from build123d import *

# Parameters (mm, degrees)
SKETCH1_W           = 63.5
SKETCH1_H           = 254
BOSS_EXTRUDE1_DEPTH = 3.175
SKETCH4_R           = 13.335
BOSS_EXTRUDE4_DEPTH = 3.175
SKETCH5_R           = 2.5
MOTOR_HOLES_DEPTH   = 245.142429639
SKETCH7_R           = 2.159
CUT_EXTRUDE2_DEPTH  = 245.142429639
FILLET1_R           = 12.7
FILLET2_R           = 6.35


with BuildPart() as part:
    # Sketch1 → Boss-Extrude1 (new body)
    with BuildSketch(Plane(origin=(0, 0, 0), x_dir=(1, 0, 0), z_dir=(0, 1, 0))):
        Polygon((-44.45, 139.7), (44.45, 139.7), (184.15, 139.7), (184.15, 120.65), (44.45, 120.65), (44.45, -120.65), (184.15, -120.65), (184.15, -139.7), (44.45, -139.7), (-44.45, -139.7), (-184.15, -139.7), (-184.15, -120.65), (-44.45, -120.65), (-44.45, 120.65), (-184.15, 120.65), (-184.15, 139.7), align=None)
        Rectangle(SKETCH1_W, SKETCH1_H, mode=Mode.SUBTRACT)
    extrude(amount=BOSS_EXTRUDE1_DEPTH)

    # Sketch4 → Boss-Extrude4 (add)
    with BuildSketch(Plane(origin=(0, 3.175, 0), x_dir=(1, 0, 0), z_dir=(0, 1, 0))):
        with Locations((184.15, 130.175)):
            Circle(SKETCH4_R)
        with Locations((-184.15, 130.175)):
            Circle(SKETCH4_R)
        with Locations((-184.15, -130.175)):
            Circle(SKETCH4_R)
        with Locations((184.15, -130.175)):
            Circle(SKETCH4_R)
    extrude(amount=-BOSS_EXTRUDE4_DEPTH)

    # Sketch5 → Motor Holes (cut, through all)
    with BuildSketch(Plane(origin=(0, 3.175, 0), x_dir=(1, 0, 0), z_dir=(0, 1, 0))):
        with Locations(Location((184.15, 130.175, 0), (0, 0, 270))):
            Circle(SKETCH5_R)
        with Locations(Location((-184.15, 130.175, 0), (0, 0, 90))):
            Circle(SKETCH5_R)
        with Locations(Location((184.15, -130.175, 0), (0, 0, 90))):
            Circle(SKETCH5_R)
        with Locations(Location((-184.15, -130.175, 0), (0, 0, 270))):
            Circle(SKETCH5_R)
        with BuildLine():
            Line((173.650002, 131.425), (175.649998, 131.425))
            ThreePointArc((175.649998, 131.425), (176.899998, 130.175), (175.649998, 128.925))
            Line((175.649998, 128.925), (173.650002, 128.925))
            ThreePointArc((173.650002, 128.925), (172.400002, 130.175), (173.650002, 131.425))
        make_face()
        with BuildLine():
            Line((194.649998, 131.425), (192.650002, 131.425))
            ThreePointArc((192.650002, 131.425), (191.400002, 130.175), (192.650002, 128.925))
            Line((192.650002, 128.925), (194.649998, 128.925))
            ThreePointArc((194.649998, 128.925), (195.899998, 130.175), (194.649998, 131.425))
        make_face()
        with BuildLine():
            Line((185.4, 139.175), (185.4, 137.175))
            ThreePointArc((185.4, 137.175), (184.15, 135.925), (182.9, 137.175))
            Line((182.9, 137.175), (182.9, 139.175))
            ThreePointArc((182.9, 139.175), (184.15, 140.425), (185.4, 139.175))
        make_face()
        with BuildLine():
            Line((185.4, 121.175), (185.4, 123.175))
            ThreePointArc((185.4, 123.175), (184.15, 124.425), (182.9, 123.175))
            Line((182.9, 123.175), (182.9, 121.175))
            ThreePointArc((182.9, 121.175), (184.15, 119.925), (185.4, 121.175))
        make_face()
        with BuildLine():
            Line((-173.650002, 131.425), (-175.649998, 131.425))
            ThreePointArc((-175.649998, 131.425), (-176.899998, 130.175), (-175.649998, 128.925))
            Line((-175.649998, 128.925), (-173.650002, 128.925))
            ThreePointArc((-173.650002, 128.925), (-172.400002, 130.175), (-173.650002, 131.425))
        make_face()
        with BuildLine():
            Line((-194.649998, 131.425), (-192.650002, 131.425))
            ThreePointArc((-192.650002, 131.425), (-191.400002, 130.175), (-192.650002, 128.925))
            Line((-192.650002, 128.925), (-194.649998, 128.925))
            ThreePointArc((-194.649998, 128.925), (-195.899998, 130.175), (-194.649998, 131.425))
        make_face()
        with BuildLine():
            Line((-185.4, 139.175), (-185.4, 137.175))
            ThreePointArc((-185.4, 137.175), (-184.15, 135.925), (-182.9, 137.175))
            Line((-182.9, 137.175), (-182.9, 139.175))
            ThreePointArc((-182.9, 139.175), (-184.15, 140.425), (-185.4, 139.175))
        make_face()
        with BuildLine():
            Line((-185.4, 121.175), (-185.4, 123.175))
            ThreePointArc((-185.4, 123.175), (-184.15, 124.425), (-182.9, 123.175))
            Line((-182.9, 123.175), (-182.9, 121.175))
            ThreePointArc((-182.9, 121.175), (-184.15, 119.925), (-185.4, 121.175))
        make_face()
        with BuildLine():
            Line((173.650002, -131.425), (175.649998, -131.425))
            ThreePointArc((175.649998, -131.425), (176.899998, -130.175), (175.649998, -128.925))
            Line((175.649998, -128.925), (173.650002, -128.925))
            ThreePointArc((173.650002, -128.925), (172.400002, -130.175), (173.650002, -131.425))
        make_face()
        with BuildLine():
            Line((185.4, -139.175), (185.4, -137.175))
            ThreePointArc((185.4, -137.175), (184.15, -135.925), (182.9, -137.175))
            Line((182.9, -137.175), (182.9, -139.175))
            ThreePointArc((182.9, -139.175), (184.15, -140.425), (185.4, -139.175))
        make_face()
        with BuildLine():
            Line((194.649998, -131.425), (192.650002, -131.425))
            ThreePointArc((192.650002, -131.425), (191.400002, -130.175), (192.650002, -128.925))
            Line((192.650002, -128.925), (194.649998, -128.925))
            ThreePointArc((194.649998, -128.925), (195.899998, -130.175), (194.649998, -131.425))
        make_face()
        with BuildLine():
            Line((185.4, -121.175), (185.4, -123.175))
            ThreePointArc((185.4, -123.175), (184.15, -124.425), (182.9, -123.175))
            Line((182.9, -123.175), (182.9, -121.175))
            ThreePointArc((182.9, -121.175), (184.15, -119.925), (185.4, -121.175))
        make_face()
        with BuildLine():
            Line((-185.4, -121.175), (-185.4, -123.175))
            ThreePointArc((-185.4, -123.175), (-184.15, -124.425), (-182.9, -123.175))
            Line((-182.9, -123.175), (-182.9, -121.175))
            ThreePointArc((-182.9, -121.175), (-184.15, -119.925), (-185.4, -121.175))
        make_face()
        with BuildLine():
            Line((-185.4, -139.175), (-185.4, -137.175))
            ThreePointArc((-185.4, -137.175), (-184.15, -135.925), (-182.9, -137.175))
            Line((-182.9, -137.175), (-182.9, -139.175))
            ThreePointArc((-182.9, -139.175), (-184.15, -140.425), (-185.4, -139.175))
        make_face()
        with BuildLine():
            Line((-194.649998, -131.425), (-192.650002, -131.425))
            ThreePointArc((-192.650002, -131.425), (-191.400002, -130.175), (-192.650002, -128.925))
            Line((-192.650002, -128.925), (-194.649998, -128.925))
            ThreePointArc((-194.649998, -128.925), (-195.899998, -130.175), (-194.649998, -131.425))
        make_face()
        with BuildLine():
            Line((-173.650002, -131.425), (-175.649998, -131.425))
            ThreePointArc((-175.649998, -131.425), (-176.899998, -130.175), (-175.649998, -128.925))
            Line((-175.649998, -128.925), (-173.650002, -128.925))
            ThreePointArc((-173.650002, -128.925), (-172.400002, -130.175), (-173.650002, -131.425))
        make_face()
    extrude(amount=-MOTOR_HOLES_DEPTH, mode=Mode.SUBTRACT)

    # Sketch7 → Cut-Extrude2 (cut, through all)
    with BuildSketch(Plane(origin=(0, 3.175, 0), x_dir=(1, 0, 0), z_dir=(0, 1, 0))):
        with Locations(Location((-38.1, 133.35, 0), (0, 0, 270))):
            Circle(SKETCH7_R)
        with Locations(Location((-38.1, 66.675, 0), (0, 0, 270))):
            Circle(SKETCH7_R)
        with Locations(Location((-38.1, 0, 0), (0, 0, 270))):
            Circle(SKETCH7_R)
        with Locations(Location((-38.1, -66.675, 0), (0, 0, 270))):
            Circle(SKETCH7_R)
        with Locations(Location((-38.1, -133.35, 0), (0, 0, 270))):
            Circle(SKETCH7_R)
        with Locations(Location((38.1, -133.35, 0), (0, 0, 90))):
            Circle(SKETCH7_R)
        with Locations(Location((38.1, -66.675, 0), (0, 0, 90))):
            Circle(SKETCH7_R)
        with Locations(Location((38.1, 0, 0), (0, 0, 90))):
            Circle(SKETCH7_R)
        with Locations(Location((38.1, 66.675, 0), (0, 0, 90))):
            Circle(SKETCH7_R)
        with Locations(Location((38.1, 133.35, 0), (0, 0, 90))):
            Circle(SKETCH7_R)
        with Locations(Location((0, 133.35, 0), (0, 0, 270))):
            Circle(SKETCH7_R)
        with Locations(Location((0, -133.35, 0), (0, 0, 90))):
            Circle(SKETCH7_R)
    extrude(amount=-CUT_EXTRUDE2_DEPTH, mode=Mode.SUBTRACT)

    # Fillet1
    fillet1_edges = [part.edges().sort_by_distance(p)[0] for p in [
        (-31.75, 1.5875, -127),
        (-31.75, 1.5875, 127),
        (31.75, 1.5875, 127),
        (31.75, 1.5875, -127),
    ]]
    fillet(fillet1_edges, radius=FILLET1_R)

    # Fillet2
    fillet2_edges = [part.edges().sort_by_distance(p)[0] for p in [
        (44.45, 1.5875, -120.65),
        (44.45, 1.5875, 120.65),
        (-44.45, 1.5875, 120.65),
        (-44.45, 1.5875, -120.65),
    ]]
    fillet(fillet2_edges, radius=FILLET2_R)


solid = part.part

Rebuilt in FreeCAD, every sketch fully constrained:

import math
import FreeCAD as App
import Part
import Sketcher
from FreeCAD import Vector
Q = App.Units.Quantity


def edges_at(feature, points):
    """Names of the edges that pass closest to the given points."""
    edges = feature.Shape.Edges
    near = lambda p: min(range(len(edges)), key=lambda i: edges[i].distToShape(Part.Vertex(*p))[0])
    return sorted({f"Edge{near(p) + 1}" for p in points})


def add_polygon(sketch, points):
    """Adds a closed chain of lines whose ends are joined by coincident constraints."""
    first, n = sketch.GeometryCount, len(points)
    for a, b in zip(points, points[1:] + points[:1]):
        sketch.addGeometry(Part.LineSegment(App.Vector(*a, 0), App.Vector(*b, 0)), False)
    for i in range(n):
        sketch.addConstraint(Sketcher.Constraint("Coincident", first + i, 2, first + (i + 1) % n, 1))

doc = App.newDocument("Part")
body = doc.addObject("PartDesign::Body", "Body")

sketch1 = body.newObject("Sketcher::SketchObject", "Sketch")
sketch1.AttachmentSupport = (doc.getObject("XZ_Plane"), [""])
sketch1.MapMode = "FlatFace"
add_polygon(sketch1, [(184, -140), (-184, -140), (-184, -121), (-44, -121), (-44, 121), (-184, 121), (-184, 140), (184, 140), (184, 121), (44, 121), (44, -121), (184, -121)])
add_polygon(sketch1, [(-32, 127), (-32, -127), (32, -127), (32, 127)])
sketch1.addConstraint([
    Sketcher.Constraint("Horizontal", 0),
    Sketcher.Constraint("Vertical", 1),
    Sketcher.Constraint("Horizontal", 2),
    Sketcher.Constraint("Vertical", 3),
    Sketcher.Constraint("Horizontal", 4),
    Sketcher.Constraint("Vertical", 5),
    Sketcher.Constraint("Horizontal", 6),
    Sketcher.Constraint("Vertical", 7),
    Sketcher.Constraint("Horizontal", 8),
    Sketcher.Constraint("Vertical", 9),
    Sketcher.Constraint("Horizontal", 10),
    Sketcher.Constraint("Vertical", 11),
    Sketcher.Constraint("Vertical", 12),
    Sketcher.Constraint("Horizontal", 13),
    Sketcher.Constraint("Vertical", 14),
    Sketcher.Constraint("Horizontal", 15),
    Sketcher.Constraint("Symmetric", 0, 2, 6, 2, -1, 1),
    Sketcher.Constraint("Symmetric", 2, 2, 8, 2, -1, 1),
    Sketcher.Constraint("Symmetric", 4, 2, 10, 2, -1, 1),
    Sketcher.Constraint("Symmetric", 12, 2, 14, 2, -1, 1),
    Sketcher.Constraint("Symmetric", 4, 2, 7, 2, -2),
    Sketcher.Constraint("DistanceY", 12, 2, 12, 1, Q("10 in")),
    Sketcher.Constraint("DistanceX", 0, 2, 0, 1, Q("14.5 in")),
    Sketcher.Constraint("DistanceX", 2, 1, 2, 2, Q("5.5 in")),
    Sketcher.Constraint("DistanceX", 13, 1, 13, 2, Q("2.5 in")),
    Sketcher.Constraint("DistanceY", 3, 1, 3, 2, Q("9.5 in")),
    Sketcher.Constraint("DistanceY", 0, 2, 5, 2, Q("11 in")),
])
pad1 = body.newObject("PartDesign::Pad", "Pad")
pad1.Profile = sketch1
pad1.Length = Q("0.125 in")
pad1.Reversed = True

sketch2 = body.newObject("Sketcher::SketchObject", "Sketch001")
sketch2.AttachmentSupport = (doc.getObject("XZ_Plane"), [""])
sketch2.MapMode = "FlatFace"
sketch2.AttachmentOffset = App.Placement(Vector(0, 0, -0.125 * 25.4), App.Rotation())
sketch2.addGeometry([
    Part.Circle(Vector(184, -130, 0), Vector(0, 0, 1), 13),
    Part.Circle(Vector(-184, -130, 0), Vector(0, 0, 1), 13),
    Part.Circle(Vector(-184, 130, 0), Vector(0, 0, 1), 13),
    Part.Circle(Vector(184, 130, 0), Vector(0, 0, 1), 13),
], False)
sketch2.addConstraint([
    Sketcher.Constraint("Equal", 0, 1),
    Sketcher.Constraint("Equal", 1, 2),
    Sketcher.Constraint("Equal", 2, 3),
    Sketcher.Constraint("Symmetric", 0, 3, 2, 3, -1, 1),
    Sketcher.Constraint("Symmetric", 1, 3, 3, 3, -1, 1),
    Sketcher.Constraint("Symmetric", 0, 3, 1, 3, -2),
    Sketcher.Constraint("Diameter", 0, Q("1.05 in")),
    Sketcher.Constraint("DistanceX", 1, 3, 0, 3, Q("14.5 in")),
    Sketcher.Constraint("DistanceY", 1, 3, 2, 3, Q("10.25 in")),
])
pad2 = body.newObject("PartDesign::Pad", "Pad001")
pad2.Profile = sketch2
pad2.Length = Q("0.125 in")

sketch3 = body.newObject("Sketcher::SketchObject", "Sketch002")
sketch3.AttachmentSupport = (doc.getObject("XZ_Plane"), [""])
sketch3.MapMode = "FlatFace"
sketch3.AttachmentOffset = App.Placement(Vector(0, 0, -0.125 * 25.4), App.Rotation())
sketch3.addGeometry([
    Part.Circle(Vector(184.2, -130.2, 0), Vector(0, 0, 1), 2.5),
    Part.Circle(Vector(-184.2, -130.2, 0), Vector(0, 0, 1), 2.5),
    Part.Circle(Vector(184.2, 130.2, 0), Vector(0, 0, 1), 2.5),
    Part.Circle(Vector(-184.2, 130.2, 0), Vector(0, 0, 1), 2.5),
    Part.LineSegment(Vector(175.6, -131.4, 0), Vector(173.7, -131.4, 0)),
    Part.ArcOfCircle(Part.Circle(Vector(173.7, -130.2, 0), Vector(0, 0, 1), 1.2), math.radians(90), math.radians(270)),
    Part.LineSegment(Vector(173.7, -128.9, 0), Vector(175.6, -128.9, 0)),
    Part.ArcOfCircle(Part.Circle(Vector(175.6, -130.2, 0), Vector(0, 0, 1), 1.2), math.radians(-90), math.radians(90)),
    Part.LineSegment(Vector(194.6, -131.4, 0), Vector(192.7, -131.4, 0)),
    Part.ArcOfCircle(Part.Circle(Vector(192.7, -130.2, 0), Vector(0, 0, 1), 1.2), math.radians(90), math.radians(270)),
    Part.LineSegment(Vector(192.7, -128.9, 0), Vector(194.6, -128.9, 0)),
    Part.ArcOfCircle(Part.Circle(Vector(194.6, -130.2, 0), Vector(0, 0, 1), 1.2), math.radians(-90), math.radians(90)),
    Part.LineSegment(Vector(185.4, -137.2, 0), Vector(185.4, -139.2, 0)),
    Part.ArcOfCircle(Part.Circle(Vector(184.2, -139.2, 0), Vector(0, 0, 1), 1.2), math.radians(180), math.radians(360)),
    Part.LineSegment(Vector(182.9, -139.2, 0), Vector(182.9, -137.2, 0)),
    Part.ArcOfCircle(Part.Circle(Vector(184.2, -137.2, 0), Vector(0, 0, 1), 1.2), math.radians(0), math.radians(180)),
    Part.LineSegment(Vector(185.4, -121.2, 0), Vector(185.4, -123.2, 0)),
    Part.ArcOfCircle(Part.Circle(Vector(184.2, -123.2, 0), Vector(0, 0, 1), 1.2), math.radians(180), math.radians(360)),
    Part.LineSegment(Vector(182.9, -123.2, 0), Vector(182.9, -121.2, 0)),
    Part.ArcOfCircle(Part.Circle(Vector(184.2, -121.2, 0), Vector(0, 0, 1), 1.2), math.radians(0), math.radians(180)),
    Part.LineSegment(Vector(-173.7, -131.4, 0), Vector(-175.6, -131.4, 0)),
    Part.ArcOfCircle(Part.Circle(Vector(-175.6, -130.2, 0), Vector(0, 0, 1), 1.2), math.radians(90), math.radians(270)),
    Part.LineSegment(Vector(-175.6, -128.9, 0), Vector(-173.7, -128.9, 0)),
    Part.ArcOfCircle(Part.Circle(Vector(-173.7, -130.2, 0), Vector(0, 0, 1), 1.2), math.radians(-90), math.radians(90)),
    Part.LineSegment(Vector(-192.7, -131.4, 0), Vector(-194.6, -131.4, 0)),
    Part.ArcOfCircle(Part.Circle(Vector(-194.6, -130.2, 0), Vector(0, 0, 1), 1.2), math.radians(90), math.radians(270)),
    Part.LineSegment(Vector(-194.6, -128.9, 0), Vector(-192.7, -128.9, 0)),
    Part.ArcOfCircle(Part.Circle(Vector(-192.7, -130.2, 0), Vector(0, 0, 1), 1.2), math.radians(-90), math.radians(90)),
    Part.LineSegment(Vector(-185.4, -139.2, 0), Vector(-185.4, -137.2, 0)),
    Part.ArcOfCircle(Part.Circle(Vector(-184.2, -137.2, 0), Vector(0, 0, 1), 1.2), math.radians(0), math.radians(180)),
    Part.LineSegment(Vector(-182.9, -137.2, 0), Vector(-182.9, -139.2, 0)),
    Part.ArcOfCircle(Part.Circle(Vector(-184.2, -139.2, 0), Vector(0, 0, 1), 1.2), math.radians(180), math.radians(360)),
    Part.LineSegment(Vector(-185.4, -123.2, 0), Vector(-185.4, -121.2, 0)),
    Part.ArcOfCircle(Part.Circle(Vector(-184.2, -121.2, 0), Vector(0, 0, 1), 1.2), math.radians(0), math.radians(180)),
    Part.LineSegment(Vector(-182.9, -121.2, 0), Vector(-182.9, -123.2, 0)),
    Part.ArcOfCircle(Part.Circle(Vector(-184.2, -123.2, 0), Vector(0, 0, 1), 1.2), math.radians(180), math.radians(360)),
    Part.LineSegment(Vector(173.7, 131.4, 0), Vector(175.6, 131.4, 0)),
    Part.ArcOfCircle(Part.Circle(Vector(175.6, 130.2, 0), Vector(0, 0, 1), 1.2), math.radians(-90), math.radians(90)),
    Part.LineSegment(Vector(175.6, 128.9, 0), Vector(173.7, 128.9, 0)),
    Part.ArcOfCircle(Part.Circle(Vector(173.7, 130.2, 0), Vector(0, 0, 1), 1.2), math.radians(90), math.radians(270)),
    Part.LineSegment(Vector(185.4, 139.2, 0), Vector(185.4, 137.2, 0)),
    Part.ArcOfCircle(Part.Circle(Vector(184.2, 137.2, 0), Vector(0, 0, 1), 1.2), math.radians(180), math.radians(360)),
    Part.LineSegment(Vector(182.9, 137.2, 0), Vector(182.9, 139.2, 0)),
    Part.ArcOfCircle(Part.Circle(Vector(184.2, 139.2, 0), Vector(0, 0, 1), 1.2), math.radians(0), math.radians(180)),
    Part.LineSegment(Vector(192.7, 131.4, 0), Vector(194.6, 131.4, 0)),
    Part.ArcOfCircle(Part.Circle(Vector(194.6, 130.2, 0), Vector(0, 0, 1), 1.2), math.radians(-90), math.radians(90)),
    Part.LineSegment(Vector(194.6, 128.9, 0), Vector(192.7, 128.9, 0)),
    Part.ArcOfCircle(Part.Circle(Vector(192.7, 130.2, 0), Vector(0, 0, 1), 1.2), math.radians(90), math.radians(270)),
    Part.LineSegment(Vector(185.4, 123.2, 0), Vector(185.4, 121.2, 0)),
    Part.ArcOfCircle(Part.Circle(Vector(184.2, 121.2, 0), Vector(0, 0, 1), 1.2), math.radians(180), math.radians(360)),
    Part.LineSegment(Vector(182.9, 121.2, 0), Vector(182.9, 123.2, 0)),
    Part.ArcOfCircle(Part.Circle(Vector(184.2, 123.2, 0), Vector(0, 0, 1), 1.2), math.radians(0), math.radians(180)),
    Part.LineSegment(Vector(-185.4, 121.2, 0), Vector(-185.4, 123.2, 0)),
    Part.ArcOfCircle(Part.Circle(Vector(-184.2, 123.2, 0), Vector(0, 0, 1), 1.2), math.radians(0), math.radians(180)),
    Part.LineSegment(Vector(-182.9, 123.2, 0), Vector(-182.9, 121.2, 0)),
    Part.ArcOfCircle(Part.Circle(Vector(-184.2, 121.2, 0), Vector(0, 0, 1), 1.2), math.radians(180), math.radians(360)),
    Part.LineSegment(Vector(-185.4, 137.2, 0), Vector(-185.4, 139.2, 0)),
    Part.ArcOfCircle(Part.Circle(Vector(-184.2, 139.2, 0), Vector(0, 0, 1), 1.2), math.radians(0), math.radians(180)),
    Part.LineSegment(Vector(-182.9, 139.2, 0), Vector(-182.9, 137.2, 0)),
    Part.ArcOfCircle(Part.Circle(Vector(-184.2, 137.2, 0), Vector(0, 0, 1), 1.2), math.radians(180), math.radians(360)),
    Part.LineSegment(Vector(-194.6, 131.4, 0), Vector(-192.7, 131.4, 0)),
    Part.ArcOfCircle(Part.Circle(Vector(-192.7, 130.2, 0), Vector(0, 0, 1), 1.2), math.radians(-90), math.radians(90)),
    Part.LineSegment(Vector(-192.7, 128.9, 0), Vector(-194.6, 128.9, 0)),
    Part.ArcOfCircle(Part.Circle(Vector(-194.6, 130.2, 0), Vector(0, 0, 1), 1.2), math.radians(90), math.radians(270)),
    Part.LineSegment(Vector(-175.6, 131.4, 0), Vector(-173.7, 131.4, 0)),
    Part.ArcOfCircle(Part.Circle(Vector(-173.7, 130.2, 0), Vector(0, 0, 1), 1.2), math.radians(-90), math.radians(90)),
    Part.LineSegment(Vector(-173.7, 128.9, 0), Vector(-175.6, 128.9, 0)),
    Part.ArcOfCircle(Part.Circle(Vector(-175.6, 130.2, 0), Vector(0, 0, 1), 1.2), math.radians(90), math.radians(270)),
], False)
sketch3.addConstraint([
    Sketcher.Constraint("Tangent", 4, 2, 5, 2),
    Sketcher.Constraint("Tangent", 5, 1, 6, 1),
    Sketcher.Constraint("Tangent", 6, 2, 7, 2),
    Sketcher.Constraint("Tangent", 7, 1, 4, 1),
    Sketcher.Constraint("Tangent", 8, 2, 9, 2),
    Sketcher.Constraint("Tangent", 9, 1, 10, 1),
    Sketcher.Constraint("Tangent", 10, 2, 11, 2),
    Sketcher.Constraint("Tangent", 11, 1, 8, 1),
    Sketcher.Constraint("Tangent", 12, 2, 13, 2),
    Sketcher.Constraint("Tangent", 13, 1, 14, 1),
    Sketcher.Constraint("Tangent", 14, 2, 15, 2),
    Sketcher.Constraint("Tangent", 15, 1, 12, 1),
    Sketcher.Constraint("Tangent", 16, 2, 17, 2),
    Sketcher.Constraint("Tangent", 17, 1, 18, 1),
    Sketcher.Constraint("Tangent", 18, 2, 19, 2),
    Sketcher.Constraint("Tangent", 19, 1, 16, 1),
    Sketcher.Constraint("Tangent", 20, 2, 21, 2),
    Sketcher.Constraint("Tangent", 21, 1, 22, 1),
    Sketcher.Constraint("Tangent", 22, 2, 23, 2),
    Sketcher.Constraint("Tangent", 23, 1, 20, 1),
    Sketcher.Constraint("Tangent", 24, 2, 25, 2),
    Sketcher.Constraint("Tangent", 25, 1, 26, 1),
    Sketcher.Constraint("Tangent", 26, 2, 27, 2),
    Sketcher.Constraint("Tangent", 27, 1, 24, 1),
    Sketcher.Constraint("Tangent", 28, 2, 29, 2),
    Sketcher.Constraint("Tangent", 29, 1, 30, 1),
    Sketcher.Constraint("Tangent", 30, 2, 31, 2),
    Sketcher.Constraint("Tangent", 31, 1, 28, 1),
    Sketcher.Constraint("Tangent", 32, 2, 33, 2),
    Sketcher.Constraint("Tangent", 33, 1, 34, 1),
    Sketcher.Constraint("Tangent", 34, 2, 35, 2),
    Sketcher.Constraint("Tangent", 35, 1, 32, 1),
    Sketcher.Constraint("Tangent", 36, 2, 37, 2),
    Sketcher.Constraint("Tangent", 37, 1, 38, 1),
    Sketcher.Constraint("Tangent", 38, 2, 39, 2),
    Sketcher.Constraint("Tangent", 39, 1, 36, 1),
    Sketcher.Constraint("Tangent", 40, 2, 41, 2),
    Sketcher.Constraint("Tangent", 41, 1, 42, 1),
    Sketcher.Constraint("Tangent", 42, 2, 43, 2),
    Sketcher.Constraint("Tangent", 43, 1, 40, 1),
    Sketcher.Constraint("Tangent", 44, 2, 45, 2),
    Sketcher.Constraint("Tangent", 45, 1, 46, 1),
    Sketcher.Constraint("Tangent", 46, 2, 47, 2),
    Sketcher.Constraint("Tangent", 47, 1, 44, 1),
    Sketcher.Constraint("Tangent", 48, 2, 49, 2),
    Sketcher.Constraint("Tangent", 49, 1, 50, 1),
    Sketcher.Constraint("Tangent", 50, 2, 51, 2),
    Sketcher.Constraint("Tangent", 51, 1, 48, 1),
    Sketcher.Constraint("Tangent", 52, 2, 53, 2),
    Sketcher.Constraint("Tangent", 53, 1, 54, 1),
    Sketcher.Constraint("Tangent", 54, 2, 55, 2),
    Sketcher.Constraint("Tangent", 55, 1, 52, 1),
    Sketcher.Constraint("Tangent", 56, 2, 57, 2),
    Sketcher.Constraint("Tangent", 57, 1, 58, 1),
    Sketcher.Constraint("Tangent", 58, 2, 59, 2),
    Sketcher.Constraint("Tangent", 59, 1, 56, 1),
    Sketcher.Constraint("Tangent", 60, 2, 61, 2),
    Sketcher.Constraint("Tangent", 61, 1, 62, 1),
    Sketcher.Constraint("Tangent", 62, 2, 63, 2),
    Sketcher.Constraint("Tangent", 63, 1, 60, 1),
    Sketcher.Constraint("Tangent", 64, 2, 65, 2),
    Sketcher.Constraint("Tangent", 65, 1, 66, 1),
    Sketcher.Constraint("Tangent", 66, 2, 67, 2),
    Sketcher.Constraint("Tangent", 67, 1, 64, 1),
    Sketcher.Constraint("Horizontal", 4),
    Sketcher.Constraint("Horizontal", 6),
    Sketcher.Constraint("Horizontal", 8),
    Sketcher.Constraint("Horizontal", 10),
    Sketcher.Constraint("Vertical", 12),
    Sketcher.Constraint("Vertical", 14),
    Sketcher.Constraint("Vertical", 16),
    Sketcher.Constraint("Vertical", 18),
    Sketcher.Constraint("Horizontal", 20),
    Sketcher.Constraint("Horizontal", 22),
    Sketcher.Constraint("Horizontal", 24),
    Sketcher.Constraint("Horizontal", 26),
    Sketcher.Constraint("Vertical", 28),
    Sketcher.Constraint("Vertical", 30),
    Sketcher.Constraint("Vertical", 32),
    Sketcher.Constraint("Vertical", 34),
    Sketcher.Constraint("Horizontal", 36),
    Sketcher.Constraint("Horizontal", 38),
    Sketcher.Constraint("Vertical", 40),
    Sketcher.Constraint("Vertical", 42),
    Sketcher.Constraint("Horizontal", 44),
    Sketcher.Constraint("Horizontal", 46),
    Sketcher.Constraint("Vertical", 48),
    Sketcher.Constraint("Vertical", 50),
    Sketcher.Constraint("Vertical", 52),
    Sketcher.Constraint("Vertical", 54),
    Sketcher.Constraint("Vertical", 56),
    Sketcher.Constraint("Vertical", 58),
    Sketcher.Constraint("Horizontal", 60),
    Sketcher.Constraint("Horizontal", 62),
    Sketcher.Constraint("Horizontal", 64),
    Sketcher.Constraint("Horizontal", 66),
    Sketcher.Constraint("Equal", 0, 1),
    Sketcher.Constraint("Equal", 1, 2),
    Sketcher.Constraint("Equal", 2, 3),
    Sketcher.Constraint("Equal", 7, 9),
    Sketcher.Constraint("Equal", 11, 13),
    Sketcher.Constraint("Equal", 15, 17),
    Sketcher.Constraint("Equal", 19, 21),
    Sketcher.Constraint("Equal", 23, 25),
    Sketcher.Constraint("Equal", 27, 29),
    Sketcher.Constraint("Equal", 31, 33),
    Sketcher.Constraint("Equal", 35, 37),
    Sketcher.Constraint("Equal", 39, 41),
    Sketcher.Constraint("Equal", 43, 45),
    Sketcher.Constraint("Equal", 47, 49),
    Sketcher.Constraint("Equal", 51, 53),
    Sketcher.Constraint("Equal", 55, 57),
    Sketcher.Constraint("Equal", 59, 61),
    Sketcher.Constraint("Equal", 63, 65),
    Sketcher.Constraint("Symmetric", 1, 3, 2, 3, -1, 1),
    Sketcher.Constraint("Symmetric", 0, 3, 3, 3, -1, 1),
    Sketcher.Constraint("Symmetric", 21, 3, 37, 3, -1, 1),
    Sketcher.Constraint("Symmetric", 29, 3, 41, 3, -1, 1),
    Sketcher.Constraint("Symmetric", 25, 3, 45, 3, -1, 1),
    Sketcher.Constraint("Symmetric", 33, 3, 49, 3, -1, 1),
    Sketcher.Constraint("Symmetric", 17, 3, 53, 3, -1, 1),
    Sketcher.Constraint("Symmetric", 13, 3, 57, 3, -1, 1),
    Sketcher.Constraint("Symmetric", 9, 3, 61, 3, -1, 1),
    Sketcher.Constraint("Symmetric", 5, 3, 65, 3, -1, 1),
    Sketcher.Constraint("Symmetric", 0, 3, 1, 3, -2),
    Sketcher.Constraint("Symmetric", 7, 3, 21, 3, -2),
    Sketcher.Constraint("Symmetric", 11, 3, 25, 3, -2),
    Sketcher.Constraint("Symmetric", 15, 3, 29, 3, -2),
    Sketcher.Constraint("Symmetric", 19, 3, 33, 3, -2),
    Sketcher.Constraint("Horizontal", 1, 3, 5, 3),
    Sketcher.Constraint("Horizontal", 7, 3, 9, 3),
    Sketcher.Constraint("Horizontal", 13, 3, 31, 3),
    Sketcher.Constraint("Horizontal", 17, 3, 35, 3),
    Sketcher.Constraint("Horizontal", 51, 3, 53, 3),
    Sketcher.Constraint("Horizontal", 49, 3, 55, 3),
    Sketcher.Constraint("Horizontal", 43, 3, 57, 3),
    Sketcher.Constraint("Horizontal", 41, 3, 59, 3),
    Sketcher.Constraint("Vertical", 2, 3, 13, 3),
    Sketcher.Constraint("Vertical", 15, 3, 17, 3),
    Sketcher.Constraint("Vertical", 5, 3, 39, 3),
    Sketcher.Constraint("Vertical", 9, 3, 47, 3),
    Sketcher.Constraint("Vertical", 27, 3, 61, 3),
    Sketcher.Constraint("Vertical", 25, 3, 63, 3),
    Sketcher.Constraint("Vertical", 23, 3, 65, 3),
    Sketcher.Constraint("Vertical", 21, 3, 67, 3),
    Sketcher.Constraint("Equal", 6, 8),
    Sketcher.Constraint("Equal", 14, 16),
    Sketcher.Constraint("Diameter", 0, 5.0),
    Sketcher.Constraint("DistanceX", -1, 1, 0, 3, Q("7.25 in")),
    Sketcher.Constraint("Radius", 5, 1.25),
    Sketcher.Constraint("DistanceY", 0, 3, -1, 1, Q("5.125 in")),
    Sketcher.Constraint("DistanceY", 12, 2, 12, 1, 2.0),
    Sketcher.Constraint("DistanceX", -1, 1, 5, 3, 173.650002),
    Sketcher.Constraint("DistanceX", -1, 1, 7, 3, 175.649998),
    Sketcher.Constraint("DistanceX", -1, 1, 9, 3, 192.650002),
    Sketcher.Constraint("DistanceY", 13, 3, -1, 1, 139.175),
    Sketcher.Constraint("DistanceY", 17, 3, -1, 1, 123.175),
])
pocket1 = body.newObject("PartDesign::Pocket", "Pocket")
pocket1.Profile = sketch3
pocket1.Type = "ThroughAll"
pocket1.Reversed = True

sketch4 = body.newObject("Sketcher::SketchObject", "Sketch003")
sketch4.AttachmentSupport = (doc.getObject("XZ_Plane"), [""])
sketch4.MapMode = "FlatFace"
sketch4.AttachmentOffset = App.Placement(Vector(0, 0, -0.125 * 25.4), App.Rotation())
sketch4.addGeometry([
    Part.Circle(Vector(-38.1, -133.3, 0), Vector(0, 0, 1), 2.2),
    Part.Circle(Vector(-38.1, -66.7, 0), Vector(0, 0, 1), 2.2),
    Part.Circle(Vector(-38.1, 0, 0), Vector(0, 0, 1), 2.2),
    Part.Circle(Vector(-38.1, 66.7, 0), Vector(0, 0, 1), 2.2),
    Part.Circle(Vector(-38.1, 133.3, 0), Vector(0, 0, 1), 2.2),
    Part.Circle(Vector(38.1, 133.3, 0), Vector(0, 0, 1), 2.2),
    Part.Circle(Vector(38.1, 66.7, 0), Vector(0, 0, 1), 2.2),
    Part.Circle(Vector(38.1, 0, 0), Vector(0, 0, 1), 2.2),
    Part.Circle(Vector(38.1, -66.7, 0), Vector(0, 0, 1), 2.2),
    Part.Circle(Vector(38.1, -133.3, 0), Vector(0, 0, 1), 2.2),
    Part.Circle(Vector(0, -133.3, 0), Vector(0, 0, 1), 2.2),
    Part.Circle(Vector(0, 133.3, 0), Vector(0, 0, 1), 2.2),
], False)
sketch4.addConstraint([
    Sketcher.Constraint("Equal", 0, 1),
    Sketcher.Constraint("Equal", 1, 2),
    Sketcher.Constraint("Equal", 2, 3),
    Sketcher.Constraint("Equal", 3, 4),
    Sketcher.Constraint("Equal", 4, 5),
    Sketcher.Constraint("Equal", 5, 6),
    Sketcher.Constraint("Equal", 6, 7),
    Sketcher.Constraint("Equal", 7, 8),
    Sketcher.Constraint("Equal", 8, 9),
    Sketcher.Constraint("Equal", 9, 10),
    Sketcher.Constraint("Equal", 10, 11),
    Sketcher.Constraint("Symmetric", 0, 3, 5, 3, -1, 1),
    Sketcher.Constraint("Symmetric", 1, 3, 6, 3, -1, 1),
    Sketcher.Constraint("Symmetric", 2, 3, 7, 3, -1, 1),
    Sketcher.Constraint("Symmetric", 3, 3, 8, 3, -1, 1),
    Sketcher.Constraint("Symmetric", 4, 3, 9, 3, -1, 1),
    Sketcher.Constraint("Symmetric", 10, 3, 11, 3, -1, 1),
    Sketcher.Constraint("Symmetric", 4, 3, 5, 3, -2),
    Sketcher.Constraint("Symmetric", 3, 3, 6, 3, -2),
    Sketcher.Constraint("PointOnObject", 2, 3, -1),
    Sketcher.Constraint("PointOnObject", 10, 3, -2),
    Sketcher.Constraint("Horizontal", 9, 3, 10, 3),
    Sketcher.Constraint("Vertical", 0, 3, 1, 3),
    Sketcher.Constraint("Vertical", 1, 3, 2, 3),
    Sketcher.Constraint("Diameter", 0, Q("0.17 in")),
    Sketcher.Constraint("DistanceX", 4, 3, 5, 3, Q("3 in")),
    Sketcher.Constraint("DistanceY", 0, 3, 4, 3, Q("10.5 in")),
    Sketcher.Constraint("DistanceY", 1, 3, 3, 3, Q("5.25 in")),
])
pocket2 = body.newObject("PartDesign::Pocket", "Pocket001")
pocket2.Profile = sketch4
pocket2.Type = "ThroughAll"
pocket2.Reversed = True
doc.recompute()

fillet = body.newObject("PartDesign::Fillet", "Fillet")
fillet.Base = (pocket2, edges_at(pocket2, [
    (-31.75, 1.587, -127),
    (-31.75, 1.587, 127),
    (31.75, 1.587, 127),
    (31.75, 1.587, -127),
]))
fillet.Radius = Q("0.5 in")
doc.recompute()

fillet2 = body.newObject("PartDesign::Fillet", "Fillet001")
fillet2.Base = (fillet, edges_at(fillet, [
    (44.45, 1.587, -120.65),
    (44.45, 1.587, 120.65),
    (-44.45, 1.587, 120.65),
    (-44.45, 1.587, -120.65),
]))
fillet2.Radius = Q("0.25 in")

doc.recompute()
